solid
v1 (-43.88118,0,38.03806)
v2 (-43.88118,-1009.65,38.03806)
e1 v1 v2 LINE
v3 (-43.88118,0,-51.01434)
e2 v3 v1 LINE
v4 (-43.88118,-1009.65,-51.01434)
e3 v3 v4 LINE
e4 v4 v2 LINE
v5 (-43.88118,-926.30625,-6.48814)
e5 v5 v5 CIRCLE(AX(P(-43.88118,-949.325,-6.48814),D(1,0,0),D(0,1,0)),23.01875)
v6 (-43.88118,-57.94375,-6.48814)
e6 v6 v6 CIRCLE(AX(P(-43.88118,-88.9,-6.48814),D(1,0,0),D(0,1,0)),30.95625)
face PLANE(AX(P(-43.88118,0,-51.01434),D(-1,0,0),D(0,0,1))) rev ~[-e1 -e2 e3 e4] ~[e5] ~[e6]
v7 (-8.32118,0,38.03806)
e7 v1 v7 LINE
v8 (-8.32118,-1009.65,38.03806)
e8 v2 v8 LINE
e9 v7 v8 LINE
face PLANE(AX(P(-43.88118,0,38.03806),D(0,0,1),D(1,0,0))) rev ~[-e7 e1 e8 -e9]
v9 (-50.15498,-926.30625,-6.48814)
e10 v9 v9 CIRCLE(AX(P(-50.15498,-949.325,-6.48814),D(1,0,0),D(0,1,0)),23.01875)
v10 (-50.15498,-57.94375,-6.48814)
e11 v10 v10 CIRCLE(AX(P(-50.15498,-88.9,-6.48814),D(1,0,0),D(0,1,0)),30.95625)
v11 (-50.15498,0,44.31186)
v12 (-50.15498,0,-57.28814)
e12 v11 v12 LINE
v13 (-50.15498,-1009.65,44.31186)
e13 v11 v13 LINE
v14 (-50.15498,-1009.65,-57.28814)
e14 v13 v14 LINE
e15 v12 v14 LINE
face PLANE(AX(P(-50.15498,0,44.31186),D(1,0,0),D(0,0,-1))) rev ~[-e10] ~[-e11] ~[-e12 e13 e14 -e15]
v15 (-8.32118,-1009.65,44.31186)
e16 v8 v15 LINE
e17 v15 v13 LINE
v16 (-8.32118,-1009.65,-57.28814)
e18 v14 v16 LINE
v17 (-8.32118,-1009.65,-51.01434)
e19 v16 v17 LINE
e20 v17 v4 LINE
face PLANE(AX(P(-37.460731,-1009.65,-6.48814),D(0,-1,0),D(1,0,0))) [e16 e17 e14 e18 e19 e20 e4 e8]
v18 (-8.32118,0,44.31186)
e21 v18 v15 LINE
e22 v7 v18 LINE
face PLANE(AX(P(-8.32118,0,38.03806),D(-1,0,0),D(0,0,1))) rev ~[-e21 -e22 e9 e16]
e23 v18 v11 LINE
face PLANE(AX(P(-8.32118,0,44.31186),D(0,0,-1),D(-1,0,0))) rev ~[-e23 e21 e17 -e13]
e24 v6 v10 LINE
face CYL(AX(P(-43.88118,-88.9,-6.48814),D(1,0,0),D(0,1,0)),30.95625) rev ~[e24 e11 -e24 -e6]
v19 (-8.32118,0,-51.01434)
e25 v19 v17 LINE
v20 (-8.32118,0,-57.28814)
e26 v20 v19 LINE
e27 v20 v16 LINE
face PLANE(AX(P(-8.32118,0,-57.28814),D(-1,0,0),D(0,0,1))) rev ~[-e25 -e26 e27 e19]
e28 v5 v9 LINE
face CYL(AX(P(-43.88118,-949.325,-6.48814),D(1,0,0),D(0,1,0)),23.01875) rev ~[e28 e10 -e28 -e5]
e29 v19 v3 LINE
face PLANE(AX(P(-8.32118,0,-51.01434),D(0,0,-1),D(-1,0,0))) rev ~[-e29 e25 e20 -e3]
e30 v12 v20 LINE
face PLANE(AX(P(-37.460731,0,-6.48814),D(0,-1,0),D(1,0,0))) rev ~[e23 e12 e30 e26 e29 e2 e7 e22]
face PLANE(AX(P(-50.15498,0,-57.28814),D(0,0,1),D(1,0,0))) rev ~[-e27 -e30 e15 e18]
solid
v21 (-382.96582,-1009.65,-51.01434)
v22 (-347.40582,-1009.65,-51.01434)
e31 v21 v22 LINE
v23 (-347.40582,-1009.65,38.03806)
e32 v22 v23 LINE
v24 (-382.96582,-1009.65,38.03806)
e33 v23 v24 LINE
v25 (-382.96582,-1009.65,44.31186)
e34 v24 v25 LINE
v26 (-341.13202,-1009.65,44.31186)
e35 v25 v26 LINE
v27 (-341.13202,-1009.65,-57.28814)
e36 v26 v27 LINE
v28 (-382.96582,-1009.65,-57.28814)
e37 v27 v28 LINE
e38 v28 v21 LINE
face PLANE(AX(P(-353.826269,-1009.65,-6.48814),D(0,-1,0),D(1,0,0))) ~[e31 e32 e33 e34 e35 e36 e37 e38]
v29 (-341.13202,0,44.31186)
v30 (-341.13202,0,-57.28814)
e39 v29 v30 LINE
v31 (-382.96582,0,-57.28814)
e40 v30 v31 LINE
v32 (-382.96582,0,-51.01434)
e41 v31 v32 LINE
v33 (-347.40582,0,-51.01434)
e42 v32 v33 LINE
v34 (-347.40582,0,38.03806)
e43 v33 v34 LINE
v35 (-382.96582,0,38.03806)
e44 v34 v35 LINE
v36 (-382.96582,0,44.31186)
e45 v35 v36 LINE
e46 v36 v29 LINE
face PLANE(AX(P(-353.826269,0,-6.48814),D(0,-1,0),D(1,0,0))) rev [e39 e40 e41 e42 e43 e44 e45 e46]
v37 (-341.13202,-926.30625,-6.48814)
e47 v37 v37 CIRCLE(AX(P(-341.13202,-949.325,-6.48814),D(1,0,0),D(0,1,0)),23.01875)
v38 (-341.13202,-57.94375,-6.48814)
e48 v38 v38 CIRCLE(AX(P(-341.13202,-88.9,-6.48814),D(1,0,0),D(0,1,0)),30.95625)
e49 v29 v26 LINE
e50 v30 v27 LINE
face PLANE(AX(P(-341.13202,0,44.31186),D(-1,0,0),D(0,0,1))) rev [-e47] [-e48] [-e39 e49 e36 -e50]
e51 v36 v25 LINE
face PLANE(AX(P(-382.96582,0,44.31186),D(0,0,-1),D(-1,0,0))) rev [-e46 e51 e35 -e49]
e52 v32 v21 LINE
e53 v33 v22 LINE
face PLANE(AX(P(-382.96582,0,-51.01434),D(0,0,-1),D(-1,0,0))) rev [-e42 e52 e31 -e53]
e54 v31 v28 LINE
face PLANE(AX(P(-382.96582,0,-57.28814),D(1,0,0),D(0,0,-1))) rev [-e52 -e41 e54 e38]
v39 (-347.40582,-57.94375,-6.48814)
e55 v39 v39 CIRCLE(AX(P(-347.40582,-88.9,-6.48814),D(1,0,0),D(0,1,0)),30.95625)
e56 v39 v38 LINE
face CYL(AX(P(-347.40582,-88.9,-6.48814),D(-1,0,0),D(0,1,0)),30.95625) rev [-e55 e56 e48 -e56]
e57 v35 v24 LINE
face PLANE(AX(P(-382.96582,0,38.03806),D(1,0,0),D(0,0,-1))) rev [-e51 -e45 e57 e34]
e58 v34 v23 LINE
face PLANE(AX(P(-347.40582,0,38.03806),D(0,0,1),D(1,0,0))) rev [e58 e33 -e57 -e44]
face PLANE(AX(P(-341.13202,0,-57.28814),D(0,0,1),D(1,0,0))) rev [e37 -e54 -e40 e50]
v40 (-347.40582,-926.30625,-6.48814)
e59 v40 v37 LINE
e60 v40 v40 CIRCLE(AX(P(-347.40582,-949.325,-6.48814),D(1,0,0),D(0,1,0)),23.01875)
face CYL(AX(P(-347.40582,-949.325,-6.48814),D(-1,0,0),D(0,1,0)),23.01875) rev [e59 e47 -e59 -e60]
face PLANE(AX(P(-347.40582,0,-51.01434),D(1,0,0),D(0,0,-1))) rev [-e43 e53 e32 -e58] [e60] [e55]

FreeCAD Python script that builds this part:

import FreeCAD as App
import Part
import Sketcher

V = App.Vector
Q = App.Units.Quantity

doc = App.newDocument("Part")
params = doc.addObject("Spreadsheet::Sheet", "Params")
for row, (alias, value) in enumerate([
    ("sketch1_height", "4 in"),
    ("sketch1_width", "1.4 in"),
    ("sketch1_width2", "1.647 in"),
    ("sketch1_height2", "0.247 in"),
    ("pad1_length", "39.75 in"),
    ("sketch2_diameter", "2.4375 in"),
    ("sketch2_diameter2", "1.8125 in"),
    ("pocket1_length", "1 in"),
], start=1):
    params.set(f"A{row}", alias)
    params.set(f"B{row}", "=" + value)
    params.setAlias(f"B{row}", alias)

body = doc.addObject("PartDesign::Body", "Body")

# Sketch on XZ plane
sketch1 = body.newObject("Sketcher::SketchObject", "Sketch")
sketch1.AttachmentSupport = (doc.getObject("XZ_Plane"), [""])
sketch1.MapMode = "FlatFace"
sketch1.addGeometry(Part.LineSegment(V(-8, 44, 0), V(-50, 44, 0)), False)
sketch1.addGeometry(Part.LineSegment(V(-50, 44, 0), V(-50, -57, 0)), False)
sketch1.addGeometry(Part.LineSegment(V(-50, -57, 0), V(-8, -57, 0)), False)
sketch1.addGeometry(Part.LineSegment(V(-8, -57, 0), V(-8, -51, 0)), False)
sketch1.addGeometry(Part.LineSegment(V(-8, -51, 0), V(-44, -51, 0)), False)
sketch1.addGeometry(Part.LineSegment(V(-44, -51, 0), V(-44, 38, 0)), False)
sketch1.addGeometry(Part.LineSegment(V(-44, 38, 0), V(-8, 38, 0)), False)
sketch1.addGeometry(Part.LineSegment(V(-8, 38, 0), V(-8, 44, 0)), False)
sketch1.addConstraint(Sketcher.Constraint("Coincident", 0, 2, 1, 1))
sketch1.addConstraint(Sketcher.Constraint("Coincident", 1, 2, 2, 1))
sketch1.addConstraint(Sketcher.Constraint("Coincident", 2, 2, 3, 1))
sketch1.addConstraint(Sketcher.Constraint("Coincident", 3, 2, 4, 1))
sketch1.addConstraint(Sketcher.Constraint("Coincident", 4, 2, 5, 1))
sketch1.addConstraint(Sketcher.Constraint("Coincident", 5, 2, 6, 1))
sketch1.addConstraint(Sketcher.Constraint("Coincident", 6, 2, 7, 1))
sketch1.addConstraint(Sketcher.Constraint("Coincident", 7, 2, 0, 1))
sketch1.addConstraint(Sketcher.Constraint("Horizontal", 0))
sketch1.addConstraint(Sketcher.Constraint("Vertical", 1))
sketch1.addConstraint(Sketcher.Constraint("Horizontal", 2))
sketch1.addConstraint(Sketcher.Constraint("Vertical", 3))
sketch1.addConstraint(Sketcher.Constraint("Horizontal", 4))
sketch1.addConstraint(Sketcher.Constraint("Vertical", 5))
sketch1.addConstraint(Sketcher.Constraint("Horizontal", 6))
sketch1.addConstraint(Sketcher.Constraint("Vertical", 7))
sketch1.addConstraint(Sketcher.Constraint("Vertical", 3, 2, 6, 2))
sketch1.addConstraint(Sketcher.Constraint("Equal", 3, 7))
sketch1.addConstraint(Sketcher.Constraint("DistanceY", 1, 2, 1, 1, Q("4 in")))
sketch1.addConstraint(Sketcher.Constraint("DistanceX", 4, 2, 4, 1, Q("1.4 in")))
sketch1.addConstraint(Sketcher.Constraint("DistanceX", 0, 2, 0, 1, Q("1.647 in")))
sketch1.addConstraint(Sketcher.Constraint("DistanceY", 3, 1, 3, 2, Q("0.247 in")))
sketch1.addConstraint(Sketcher.Constraint("DistanceX", 0, 2, -1, 1, Q("50.15498 mm")))
sketch1.addConstraint(Sketcher.Constraint("DistanceY", -1, 1, 0, 2, Q("44.31186 mm")))
sketch1.setExpression("Constraints[18]", "Params.sketch1_height")
sketch1.setExpression("Constraints[19]", "Params.sketch1_width")
sketch1.setExpression("Constraints[20]", "Params.sketch1_width2")
sketch1.setExpression("Constraints[21]", "Params.sketch1_height2")
pad1 = body.newObject("PartDesign::Pad", "Pad")
pad1.Profile = sketch1
pad1.setExpression("Length", "Params.pad1_length")

# Sketch on YZ plane
sketch2 = body.newObject("Sketcher::SketchObject", "Sketch001")
sketch2.AttachmentSupport = (doc.getObject("YZ_Plane"), [""])
sketch2.MapMode = "FlatFace"
sketch2.AttachmentOffset = App.Placement(V(0, 0, -43.88118), App.Rotation())
sketch2.addGeometry(Part.Circle(V(-89, -6, 0), V(0, 0, 1), 31), False)
sketch2.addGeometry(Part.Circle(V(-949, -6, 0), V(0, 0, 1), 23), False)
sketch2.addConstraint(Sketcher.Constraint("Horizontal", 0, 3, 1, 3))
sketch2.addConstraint(Sketcher.Constraint("Diameter", 0, Q("2.4375 in")))
sketch2.addConstraint(Sketcher.Constraint("Diameter", 1, Q("1.8125 in")))
sketch2.addConstraint(Sketcher.Constraint("DistanceX", 0, 3, -1, 1, Q("3.5 in")))
sketch2.addConstraint(Sketcher.Constraint("DistanceX", 1, 3, -1, 1, Q("37.375 in")))
sketch2.addConstraint(Sketcher.Constraint("DistanceY", 0, 3, -1, 1, Q("6.48814 mm")))
sketch2.setExpression("Constraints[1]", "Params.sketch2_diameter")
sketch2.setExpression("Constraints[2]", "Params.sketch2_diameter2")
pocket1 = body.newObject("PartDesign::Pocket", "Pocket")
pocket1.Profile = sketch2
pocket1.setExpression("Length", "Params.pocket1_length")
body2 = doc.addObject("PartDesign::Body", "Body001")
doc.recompute()

mirroring = doc.addObject("Part::Mirroring", "Mirroring")
mirroring.Source = body
mirroring.Base = V(-195.6435, 0, 0)
mirroring.Normal = V(1, 0, 0)
body2.BaseFeature = mirroring
doc.recompute()
mirroring.Visibility = False

doc.recompute()
